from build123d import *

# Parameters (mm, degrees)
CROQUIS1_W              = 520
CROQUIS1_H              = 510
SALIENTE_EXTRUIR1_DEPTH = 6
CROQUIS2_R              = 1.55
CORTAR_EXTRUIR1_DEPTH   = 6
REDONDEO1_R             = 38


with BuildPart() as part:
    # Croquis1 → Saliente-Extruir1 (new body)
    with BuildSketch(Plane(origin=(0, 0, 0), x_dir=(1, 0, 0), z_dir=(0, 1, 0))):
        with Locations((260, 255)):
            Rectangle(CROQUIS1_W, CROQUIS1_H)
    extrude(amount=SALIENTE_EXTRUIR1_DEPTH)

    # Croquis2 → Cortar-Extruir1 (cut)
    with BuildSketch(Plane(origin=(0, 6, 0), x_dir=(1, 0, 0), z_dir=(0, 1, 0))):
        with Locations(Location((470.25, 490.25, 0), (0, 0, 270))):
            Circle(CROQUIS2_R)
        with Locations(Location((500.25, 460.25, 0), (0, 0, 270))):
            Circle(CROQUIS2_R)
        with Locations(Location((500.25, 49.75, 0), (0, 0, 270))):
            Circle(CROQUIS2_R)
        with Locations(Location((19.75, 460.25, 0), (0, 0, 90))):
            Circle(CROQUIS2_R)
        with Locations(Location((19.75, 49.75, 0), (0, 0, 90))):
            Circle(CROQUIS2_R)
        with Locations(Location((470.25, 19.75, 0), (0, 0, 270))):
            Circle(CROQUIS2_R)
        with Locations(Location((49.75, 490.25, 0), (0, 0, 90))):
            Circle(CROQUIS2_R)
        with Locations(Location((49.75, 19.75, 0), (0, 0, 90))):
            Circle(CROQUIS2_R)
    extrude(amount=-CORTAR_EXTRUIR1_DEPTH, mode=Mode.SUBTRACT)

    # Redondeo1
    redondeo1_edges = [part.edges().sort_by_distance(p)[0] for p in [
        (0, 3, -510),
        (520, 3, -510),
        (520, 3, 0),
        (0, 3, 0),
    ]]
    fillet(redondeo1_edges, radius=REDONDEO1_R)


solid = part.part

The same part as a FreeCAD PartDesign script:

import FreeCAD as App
import Part
import Sketcher

V = App.Vector
Q = App.Units.Quantity


def edges_at(feature, points):
    """Names of the edges that pass closest to the given points."""
    edges = feature.Shape.Edges
    near = lambda p: min(range(len(edges)), key=lambda i: edges[i].distToShape(Part.Vertex(*p))[0])
    return sorted({f"Edge{near(p) + 1}" for p in points})


def add_polygon(sketch, points):
    """Adds a closed chain of lines whose ends are joined by coincident constraints."""
    first, n = sketch.GeometryCount, len(points)
    for a, b in zip(points, points[1:] + points[:1]):
        sketch.addGeometry(Part.LineSegment(App.Vector(*a, 0), App.Vector(*b, 0)), False)
    for i in range(n):
        sketch.addConstraint(Sketcher.Constraint("Coincident", first + i, 2, first + (i + 1) % n, 1))

doc = App.newDocument("Part")
body = doc.addObject("PartDesign::Body", "Body")

# Sketch on XZ plane
sketch1 = doc.addObject("Sketcher::SketchObject", "Sketch")
body.addObject(sketch1)
sketch1.AttachmentSupport = (doc.XZ_Plane, [""])
sketch1.MapMode = "FlatFace"
add_polygon(sketch1, [(0, -510), (0, 0), (520, 0), (520, -510)])  # lines 0-3
sketch1.addConstraint(Sketcher.Constraint("Vertical", 0))
sketch1.addConstraint(Sketcher.Constraint("Horizontal", 1))
sketch1.addConstraint(Sketcher.Constraint("Vertical", 2))
sketch1.addConstraint(Sketcher.Constraint("Horizontal", 3))
sketch1.addConstraint(Sketcher.Constraint("Coincident", 0, 2, -1, 1))
sketch1.addConstraint(Sketcher.Constraint("DistanceX", 1, 1, 1, 2, Q("520 mm")))
sketch1.addConstraint(Sketcher.Constraint("DistanceY", 0, 1, 0, 2, Q("510 mm")))
pad1 = doc.addObject("PartDesign::Pad", "Pad")
body.addObject(pad1)
pad1.Profile = sketch1
pad1.Length = 6
pad1.Reversed = True

# Sketch on XZ plane
sketch2 = doc.addObject("Sketcher::SketchObject", "Sketch001")
body.addObject(sketch2)
sketch2.AttachmentSupport = (doc.XZ_Plane, [""])
sketch2.MapMode = "FlatFace"
sketch2.AttachmentOffset = App.Placement(V(0, 0, -6), App.Rotation())
sketch2.addGeometry(Part.Circle(V(470.25, -490.25, 0), V(0, 0, 1), 1.55), False)
sketch2.addGeometry(Part.Circle(V(500.25, -460.25, 0), V(0, 0, 1), 1.55), False)
sketch2.addGeometry(Part.Circle(V(500.25, -49.75, 0), V(0, 0, 1), 1.55), False)
sketch2.addGeometry(Part.Circle(V(19.75, -460.25, 0), V(0, 0, 1), 1.55), False)
sketch2.addGeometry(Part.Circle(V(19.75, -49.75, 0), V(0, 0, 1), 1.55), False)
sketch2.addGeometry(Part.Circle(V(470.25, -19.75, 0), V(0, 0, 1), 1.55), False)
sketch2.addGeometry(Part.Circle(V(49.75, -490.25, 0), V(0, 0, 1), 1.55), False)
sketch2.addGeometry(Part.Circle(V(49.75, -19.75, 0), V(0, 0, 1), 1.55), False)
sketch2.addConstraint(Sketcher.Constraint("Equal", 0, 1))
sketch2.addConstraint(Sketcher.Constraint("Equal", 1, 2))
sketch2.addConstraint(Sketcher.Constraint("Equal", 2, 3))
sketch2.addConstraint(Sketcher.Constraint("Equal", 3, 4))
sketch2.addConstraint(Sketcher.Constraint("Equal", 4, 5))
sketch2.addConstraint(Sketcher.Constraint("Equal", 5, 6))
sketch2.addConstraint(Sketcher.Constraint("Equal", 6, 7))
sketch2.addConstraint(Sketcher.Constraint("Horizontal", 1, 3, 3, 3))
sketch2.addConstraint(Sketcher.Constraint("Horizontal", 2, 3, 4, 3))
sketch2.addConstraint(Sketcher.Constraint("Horizontal", 0, 3, 6, 3))
sketch2.addConstraint(Sketcher.Constraint("Horizontal", 5, 3, 7, 3))
sketch2.addConstraint(Sketcher.Constraint("Vertical", 1, 3, 2, 3))
sketch2.addConstraint(Sketcher.Constraint("Vertical", 3, 3, 4, 3))
sketch2.addConstraint(Sketcher.Constraint("Vertical", 0, 3, 5, 3))
sketch2.addConstraint(Sketcher.Constraint("Vertical", 6, 3, 7, 3))
sketch2.addConstraint(Sketcher.Constraint("Diameter", 0, Q("3.1 mm")))
sketch2.addConstraint(Sketcher.Constraint("DistanceX", 0, 3, 1, 3, Q("30 mm")))
sketch2.addConstraint(Sketcher.Constraint("DistanceY", 0, 3, 1, 3, Q("30 mm")))
sketch2.addConstraint(Sketcher.Constraint("DistanceY", 2, 3, 5, 3, Q("30 mm")))
sketch2.addConstraint(Sketcher.Constraint("DistanceX", 3, 3, 6, 3, Q("30 mm")))
sketch2.addConstraint(Sketcher.Constraint("DistanceY", 1, 3, 2, 3, Q("410.5 mm")))
sketch2.addConstraint(Sketcher.Constraint("DistanceX", 3, 3, 0, 3, Q("450.5 mm")))
sketch2.addConstraint(Sketcher.Constraint("DistanceX", -1, 1, 0, 3, Q("470.25 mm")))
sketch2.addConstraint(Sketcher.Constraint("DistanceY", 0, 3, -1, 1, Q("490.25 mm")))
pocket1 = doc.addObject("PartDesign::Pocket", "Pocket")
body.addObject(pocket1)
pocket1.Profile = sketch2
pocket1.Length = 6
pocket1.Reversed = True
doc.recompute()

fillet = doc.addObject("PartDesign::Fillet", "Fillet")
body.addObject(fillet)
fillet.Base = (pocket1, edges_at(pocket1, [
    (0, 3, -510),
    (520, 3, -510),
    (520, 3, 0),
    (0, 3, 0),
]))
fillet.Radius = 38

doc.recompute()
